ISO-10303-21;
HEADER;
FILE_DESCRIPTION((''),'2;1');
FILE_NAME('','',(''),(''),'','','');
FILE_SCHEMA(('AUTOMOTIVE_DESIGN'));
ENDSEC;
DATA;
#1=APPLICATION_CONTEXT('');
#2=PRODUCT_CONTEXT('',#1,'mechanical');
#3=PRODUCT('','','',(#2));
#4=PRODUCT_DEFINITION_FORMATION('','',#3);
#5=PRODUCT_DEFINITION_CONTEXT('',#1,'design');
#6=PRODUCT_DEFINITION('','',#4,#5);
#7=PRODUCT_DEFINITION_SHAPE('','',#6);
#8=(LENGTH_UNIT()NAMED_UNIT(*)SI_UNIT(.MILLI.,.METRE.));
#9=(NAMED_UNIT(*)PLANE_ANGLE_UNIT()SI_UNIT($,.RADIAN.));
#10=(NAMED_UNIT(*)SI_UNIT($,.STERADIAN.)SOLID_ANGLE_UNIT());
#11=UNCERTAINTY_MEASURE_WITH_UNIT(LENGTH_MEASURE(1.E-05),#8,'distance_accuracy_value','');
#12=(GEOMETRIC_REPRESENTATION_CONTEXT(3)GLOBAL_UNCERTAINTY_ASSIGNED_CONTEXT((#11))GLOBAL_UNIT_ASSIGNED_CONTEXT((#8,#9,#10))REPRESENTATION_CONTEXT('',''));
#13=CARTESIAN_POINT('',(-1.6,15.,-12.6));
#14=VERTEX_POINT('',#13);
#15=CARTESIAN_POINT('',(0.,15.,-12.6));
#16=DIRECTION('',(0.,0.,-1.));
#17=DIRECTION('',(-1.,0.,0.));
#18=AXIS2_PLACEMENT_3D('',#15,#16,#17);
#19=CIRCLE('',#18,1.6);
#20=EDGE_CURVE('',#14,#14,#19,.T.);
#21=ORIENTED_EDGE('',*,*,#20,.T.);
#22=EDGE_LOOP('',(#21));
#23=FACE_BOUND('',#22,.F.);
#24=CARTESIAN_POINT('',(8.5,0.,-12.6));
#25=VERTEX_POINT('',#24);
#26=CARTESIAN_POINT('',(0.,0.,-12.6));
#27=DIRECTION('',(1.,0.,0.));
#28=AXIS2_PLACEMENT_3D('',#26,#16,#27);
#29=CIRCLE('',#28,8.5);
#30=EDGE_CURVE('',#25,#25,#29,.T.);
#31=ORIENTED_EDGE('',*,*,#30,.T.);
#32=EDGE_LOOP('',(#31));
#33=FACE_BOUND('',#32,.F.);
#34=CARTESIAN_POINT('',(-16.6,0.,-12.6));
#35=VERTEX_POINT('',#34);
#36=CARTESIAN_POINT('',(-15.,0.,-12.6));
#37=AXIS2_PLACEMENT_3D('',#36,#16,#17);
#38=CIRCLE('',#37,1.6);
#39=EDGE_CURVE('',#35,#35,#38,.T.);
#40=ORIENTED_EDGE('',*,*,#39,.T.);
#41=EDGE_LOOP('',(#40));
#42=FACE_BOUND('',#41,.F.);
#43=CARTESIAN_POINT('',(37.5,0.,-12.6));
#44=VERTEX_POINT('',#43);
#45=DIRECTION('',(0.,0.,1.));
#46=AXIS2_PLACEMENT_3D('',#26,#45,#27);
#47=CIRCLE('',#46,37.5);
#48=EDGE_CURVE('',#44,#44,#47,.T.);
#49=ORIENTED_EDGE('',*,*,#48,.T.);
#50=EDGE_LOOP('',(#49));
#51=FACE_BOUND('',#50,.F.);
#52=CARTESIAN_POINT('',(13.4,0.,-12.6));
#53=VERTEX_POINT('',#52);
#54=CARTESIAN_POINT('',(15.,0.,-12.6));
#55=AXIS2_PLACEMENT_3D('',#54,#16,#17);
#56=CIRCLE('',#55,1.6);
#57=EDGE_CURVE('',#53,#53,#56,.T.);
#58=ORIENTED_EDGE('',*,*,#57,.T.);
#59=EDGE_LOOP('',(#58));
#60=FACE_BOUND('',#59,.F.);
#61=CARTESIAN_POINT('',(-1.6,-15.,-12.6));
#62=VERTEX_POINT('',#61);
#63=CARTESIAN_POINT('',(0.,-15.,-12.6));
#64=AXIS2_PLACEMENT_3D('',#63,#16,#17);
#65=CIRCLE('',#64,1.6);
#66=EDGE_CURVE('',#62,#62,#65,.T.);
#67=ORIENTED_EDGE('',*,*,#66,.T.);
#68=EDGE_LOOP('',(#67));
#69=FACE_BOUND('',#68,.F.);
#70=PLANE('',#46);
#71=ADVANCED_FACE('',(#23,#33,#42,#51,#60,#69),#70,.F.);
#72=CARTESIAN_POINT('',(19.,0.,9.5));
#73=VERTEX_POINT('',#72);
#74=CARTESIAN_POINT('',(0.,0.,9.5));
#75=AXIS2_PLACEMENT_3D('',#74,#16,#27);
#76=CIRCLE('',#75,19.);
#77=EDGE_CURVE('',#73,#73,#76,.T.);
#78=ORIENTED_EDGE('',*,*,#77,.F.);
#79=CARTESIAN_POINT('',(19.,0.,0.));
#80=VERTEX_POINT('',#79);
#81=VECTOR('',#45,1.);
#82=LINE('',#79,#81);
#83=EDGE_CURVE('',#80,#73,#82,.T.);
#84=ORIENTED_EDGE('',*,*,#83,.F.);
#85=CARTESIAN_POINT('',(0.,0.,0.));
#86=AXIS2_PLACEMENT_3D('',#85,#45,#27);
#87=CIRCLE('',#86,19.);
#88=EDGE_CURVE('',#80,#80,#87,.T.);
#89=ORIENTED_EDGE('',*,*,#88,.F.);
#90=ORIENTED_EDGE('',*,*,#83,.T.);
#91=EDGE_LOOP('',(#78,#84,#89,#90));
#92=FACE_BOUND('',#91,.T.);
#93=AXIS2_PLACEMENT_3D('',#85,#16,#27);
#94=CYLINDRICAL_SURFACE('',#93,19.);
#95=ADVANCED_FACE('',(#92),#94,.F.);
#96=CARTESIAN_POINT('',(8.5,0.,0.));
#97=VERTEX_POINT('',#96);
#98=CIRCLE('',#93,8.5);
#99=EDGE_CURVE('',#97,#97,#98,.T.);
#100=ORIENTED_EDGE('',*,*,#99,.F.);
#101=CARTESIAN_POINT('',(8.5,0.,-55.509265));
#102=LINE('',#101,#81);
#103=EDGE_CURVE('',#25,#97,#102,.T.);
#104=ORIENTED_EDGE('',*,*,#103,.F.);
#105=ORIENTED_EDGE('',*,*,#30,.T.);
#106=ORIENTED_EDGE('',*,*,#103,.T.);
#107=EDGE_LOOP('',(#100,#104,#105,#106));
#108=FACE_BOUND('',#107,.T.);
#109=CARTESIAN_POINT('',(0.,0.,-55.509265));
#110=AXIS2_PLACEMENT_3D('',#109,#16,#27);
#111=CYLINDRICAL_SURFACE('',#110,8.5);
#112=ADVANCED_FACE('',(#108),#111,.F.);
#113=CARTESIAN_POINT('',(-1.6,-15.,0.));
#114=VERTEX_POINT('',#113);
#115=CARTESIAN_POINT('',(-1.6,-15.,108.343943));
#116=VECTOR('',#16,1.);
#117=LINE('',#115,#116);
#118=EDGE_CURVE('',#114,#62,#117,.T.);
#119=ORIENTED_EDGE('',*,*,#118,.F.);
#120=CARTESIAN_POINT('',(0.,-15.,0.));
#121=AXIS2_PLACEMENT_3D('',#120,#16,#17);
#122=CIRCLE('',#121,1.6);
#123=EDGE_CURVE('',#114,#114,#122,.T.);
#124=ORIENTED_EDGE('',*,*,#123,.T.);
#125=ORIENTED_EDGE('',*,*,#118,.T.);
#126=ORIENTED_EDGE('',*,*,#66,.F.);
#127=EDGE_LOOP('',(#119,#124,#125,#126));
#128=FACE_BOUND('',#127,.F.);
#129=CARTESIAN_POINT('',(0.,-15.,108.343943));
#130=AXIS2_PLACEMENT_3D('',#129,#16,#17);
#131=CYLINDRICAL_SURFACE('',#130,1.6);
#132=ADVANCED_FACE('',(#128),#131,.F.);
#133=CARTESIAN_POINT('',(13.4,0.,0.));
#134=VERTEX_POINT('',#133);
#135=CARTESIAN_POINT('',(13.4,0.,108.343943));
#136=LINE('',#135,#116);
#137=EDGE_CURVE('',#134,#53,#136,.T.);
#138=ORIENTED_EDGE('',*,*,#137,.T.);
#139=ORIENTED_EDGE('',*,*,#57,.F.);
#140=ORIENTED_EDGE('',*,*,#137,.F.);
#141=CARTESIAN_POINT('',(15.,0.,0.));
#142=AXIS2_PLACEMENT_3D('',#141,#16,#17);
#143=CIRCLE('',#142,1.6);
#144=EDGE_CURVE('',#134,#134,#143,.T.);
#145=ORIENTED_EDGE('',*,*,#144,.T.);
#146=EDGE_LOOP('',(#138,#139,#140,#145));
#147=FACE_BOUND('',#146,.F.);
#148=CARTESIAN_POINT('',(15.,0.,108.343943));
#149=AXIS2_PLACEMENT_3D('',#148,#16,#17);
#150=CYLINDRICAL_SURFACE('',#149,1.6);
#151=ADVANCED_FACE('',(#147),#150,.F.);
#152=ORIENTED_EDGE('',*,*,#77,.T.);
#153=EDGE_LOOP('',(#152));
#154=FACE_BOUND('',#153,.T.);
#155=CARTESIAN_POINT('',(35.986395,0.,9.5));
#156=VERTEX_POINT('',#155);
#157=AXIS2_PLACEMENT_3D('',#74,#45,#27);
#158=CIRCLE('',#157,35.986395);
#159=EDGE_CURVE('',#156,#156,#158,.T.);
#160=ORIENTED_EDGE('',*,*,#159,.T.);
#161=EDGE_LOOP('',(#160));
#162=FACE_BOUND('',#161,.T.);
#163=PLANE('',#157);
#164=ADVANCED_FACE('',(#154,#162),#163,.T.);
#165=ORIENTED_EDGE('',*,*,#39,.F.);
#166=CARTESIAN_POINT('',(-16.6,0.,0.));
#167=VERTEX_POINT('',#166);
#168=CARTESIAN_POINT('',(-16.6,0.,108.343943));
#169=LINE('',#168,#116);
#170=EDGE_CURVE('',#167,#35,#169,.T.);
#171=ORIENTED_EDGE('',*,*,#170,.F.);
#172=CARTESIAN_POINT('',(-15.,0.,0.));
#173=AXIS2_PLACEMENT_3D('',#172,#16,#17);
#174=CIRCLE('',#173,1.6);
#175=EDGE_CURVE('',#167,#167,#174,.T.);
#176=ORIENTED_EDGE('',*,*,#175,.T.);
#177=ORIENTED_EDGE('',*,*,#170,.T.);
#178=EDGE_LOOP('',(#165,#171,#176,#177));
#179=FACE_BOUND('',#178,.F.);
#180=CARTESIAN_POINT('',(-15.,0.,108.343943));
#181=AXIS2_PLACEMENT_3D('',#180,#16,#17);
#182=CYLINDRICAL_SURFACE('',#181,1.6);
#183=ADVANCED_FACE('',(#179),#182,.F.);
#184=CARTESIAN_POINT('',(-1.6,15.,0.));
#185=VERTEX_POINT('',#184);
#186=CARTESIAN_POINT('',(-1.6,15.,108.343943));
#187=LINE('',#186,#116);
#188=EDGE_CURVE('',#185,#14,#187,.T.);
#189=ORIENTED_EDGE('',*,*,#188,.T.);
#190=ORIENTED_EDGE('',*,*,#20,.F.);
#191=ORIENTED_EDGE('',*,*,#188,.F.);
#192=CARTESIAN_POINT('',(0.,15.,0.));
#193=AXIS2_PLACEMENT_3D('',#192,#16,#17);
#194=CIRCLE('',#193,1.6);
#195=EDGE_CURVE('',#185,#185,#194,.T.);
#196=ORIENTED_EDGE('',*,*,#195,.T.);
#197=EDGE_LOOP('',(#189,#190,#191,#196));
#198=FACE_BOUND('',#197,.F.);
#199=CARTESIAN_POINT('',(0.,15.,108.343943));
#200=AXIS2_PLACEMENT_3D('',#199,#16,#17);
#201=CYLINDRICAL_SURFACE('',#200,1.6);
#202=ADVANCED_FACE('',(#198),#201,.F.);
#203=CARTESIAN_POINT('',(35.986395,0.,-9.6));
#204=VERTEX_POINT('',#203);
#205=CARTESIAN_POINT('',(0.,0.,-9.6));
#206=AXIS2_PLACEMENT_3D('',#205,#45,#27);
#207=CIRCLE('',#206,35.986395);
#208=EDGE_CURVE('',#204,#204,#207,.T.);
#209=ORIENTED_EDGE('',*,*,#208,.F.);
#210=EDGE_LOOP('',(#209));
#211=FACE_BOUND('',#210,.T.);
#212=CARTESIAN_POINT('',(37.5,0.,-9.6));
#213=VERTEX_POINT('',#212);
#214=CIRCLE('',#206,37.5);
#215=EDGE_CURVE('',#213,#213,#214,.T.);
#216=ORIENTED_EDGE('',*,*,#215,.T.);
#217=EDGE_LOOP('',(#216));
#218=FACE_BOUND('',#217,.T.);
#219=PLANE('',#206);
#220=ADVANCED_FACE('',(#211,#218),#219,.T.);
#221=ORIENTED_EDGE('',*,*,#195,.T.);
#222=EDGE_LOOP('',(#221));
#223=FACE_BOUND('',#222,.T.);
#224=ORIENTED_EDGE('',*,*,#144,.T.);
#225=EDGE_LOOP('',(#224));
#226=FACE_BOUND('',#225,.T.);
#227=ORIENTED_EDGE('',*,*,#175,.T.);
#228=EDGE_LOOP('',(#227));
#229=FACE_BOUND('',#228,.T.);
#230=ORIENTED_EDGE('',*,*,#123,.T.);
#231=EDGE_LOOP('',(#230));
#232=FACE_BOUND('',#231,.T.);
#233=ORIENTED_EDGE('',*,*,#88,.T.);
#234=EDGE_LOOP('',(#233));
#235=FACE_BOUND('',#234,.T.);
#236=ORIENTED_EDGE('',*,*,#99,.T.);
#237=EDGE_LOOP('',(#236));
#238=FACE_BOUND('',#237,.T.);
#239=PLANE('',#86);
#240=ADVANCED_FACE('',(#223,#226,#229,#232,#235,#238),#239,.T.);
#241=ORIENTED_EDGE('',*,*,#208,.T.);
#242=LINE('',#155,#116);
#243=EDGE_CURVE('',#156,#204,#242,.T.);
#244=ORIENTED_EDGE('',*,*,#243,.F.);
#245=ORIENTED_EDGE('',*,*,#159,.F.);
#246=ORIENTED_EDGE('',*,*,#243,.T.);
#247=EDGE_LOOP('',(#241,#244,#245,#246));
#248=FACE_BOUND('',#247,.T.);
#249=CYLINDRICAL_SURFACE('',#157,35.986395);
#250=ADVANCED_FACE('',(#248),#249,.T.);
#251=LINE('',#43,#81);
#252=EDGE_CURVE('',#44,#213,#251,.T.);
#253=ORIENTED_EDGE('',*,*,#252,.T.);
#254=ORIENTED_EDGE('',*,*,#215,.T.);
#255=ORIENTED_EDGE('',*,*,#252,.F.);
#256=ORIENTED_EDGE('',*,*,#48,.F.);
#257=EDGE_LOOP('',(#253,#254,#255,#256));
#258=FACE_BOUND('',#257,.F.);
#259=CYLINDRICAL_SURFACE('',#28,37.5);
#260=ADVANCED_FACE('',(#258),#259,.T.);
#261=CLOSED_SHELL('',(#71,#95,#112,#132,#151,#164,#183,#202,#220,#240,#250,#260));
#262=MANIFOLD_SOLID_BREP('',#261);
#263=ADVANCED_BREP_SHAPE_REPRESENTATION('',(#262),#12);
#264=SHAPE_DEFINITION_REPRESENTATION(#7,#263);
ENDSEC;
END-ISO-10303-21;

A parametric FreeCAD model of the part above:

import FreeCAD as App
import Part
import Sketcher
Q = App.Units.Quantity

doc = App.newDocument("Part")
params = doc.addObject("Spreadsheet::Sheet", "Params")
for row, (alias, value) in enumerate([
    ("pad1_length", "19.1 mm"),
    ("sketch2_diameter", "38 mm"),
    ("sketch3_diameter", "75 mm"),
    ("pad2_length", "3 mm"),
    ("sketch4_diameter", "17 mm"),
    ("sketch5_diameter", "3.2 mm"),
    ("hole_diameter", "3.2 mm"),
], start=1):
    params.set(f"A{row}", alias)
    params.set(f"B{row}", "=" + value)
    params.setAlias(f"B{row}", alias)

body = doc.addObject("PartDesign::Body", "Body")

# Sketch on XY plane
sketch1 = body.newObject("Sketcher::SketchObject", "Sketch")
sketch1.AttachmentSupport = (doc.getObject("XY_Plane"), [""])
sketch1.MapMode = "FlatFace"
sketch1.AttachmentOffset = App.Placement(App.Vector(0, 0, 9.5), App.Rotation())
sketch1.addGeometry(Part.Circle(App.Vector(0, 0, 0), App.Vector(0, 0, 1), 36), False)
sketch1.addConstraint([
    Sketcher.Constraint("Coincident", 0, 3, -1, 1),
    Sketcher.Constraint("Diameter", 0, Q("71.972789 mm")),
])
pad1 = body.newObject("PartDesign::Pad", "Pad")
pad1.Profile = sketch1
pad1.setExpression("Length", "Params.pad1_length")
pad1.Reversed = True

# Sketch on XY plane
sketch2 = body.newObject("Sketcher::SketchObject", "Sketch001")
sketch2.AttachmentSupport = (doc.getObject("XY_Plane"), [""])
sketch2.MapMode = "FlatFace"
sketch2.addGeometry(Part.Circle(App.Vector(0, 0, 0), App.Vector(0, 0, 1), 19), False)
sketch2.addConstraint([
    Sketcher.Constraint("Coincident", 0, 3, -1, 1),
    Sketcher.Constraint("Diameter", 0, Q("38 mm")),
])
sketch2.setExpression("Constraints[1]", "Params.sketch2_diameter")
pocket1 = body.newObject("PartDesign::Pocket", "Pocket")
pocket1.Profile = sketch2
pocket1.Type = "ThroughAll"
pocket1.Reversed = True

# Sketch on XY plane
sketch3 = body.newObject("Sketcher::SketchObject", "Sketch002")
sketch3.AttachmentSupport = (doc.getObject("XY_Plane"), [""])
sketch3.MapMode = "FlatFace"
sketch3.AttachmentOffset = App.Placement(App.Vector(0, 0, -12.6), App.Rotation())
sketch3.addGeometry(Part.Circle(App.Vector(0, 0, 0), App.Vector(0, 0, 1), 38), False)
sketch3.addConstraint([
    Sketcher.Constraint("Coincident", 0, 3, -1, 1),
    Sketcher.Constraint("Diameter", 0, Q("75 mm")),
])
sketch3.setExpression("Constraints[1]", "Params.sketch3_diameter")
pad2 = body.newObject("PartDesign::Pad", "Pad001")
pad2.Profile = sketch3
pad2.setExpression("Length", "Params.pad2_length")

# Sketch on XY plane
sketch4 = body.newObject("Sketcher::SketchObject", "Sketch003")
sketch4.AttachmentSupport = (doc.getObject("XY_Plane"), [""])
sketch4.MapMode = "FlatFace"
sketch4.addGeometry(Part.Circle(App.Vector(0, 0, 0), App.Vector(0, 0, 1), 8), False)
sketch4.addConstraint([
    Sketcher.Constraint("Coincident", 0, 3, -1, 1),
    Sketcher.Constraint("Diameter", 0, Q("17 mm")),
])
sketch4.setExpression("Constraints[1]", "Params.sketch4_diameter")
pocket2 = body.newObject("PartDesign::Pocket", "Pocket001")
pocket2.Profile = sketch4
pocket2.Type = "ThroughAll"
pocket2.Midplane = True

# Sketch on XY plane
sketch5 = body.newObject("Sketcher::SketchObject", "Sketch004")
sketch5.AttachmentSupport = (doc.getObject("XY_Plane"), [""])
sketch5.MapMode = "FlatFace"
sketch5.addGeometry([
    Part.Circle(App.Vector(0, 15, 0), App.Vector(0, 0, 1), 1.6),
    Part.Circle(App.Vector(-15, 0, 0), App.Vector(0, 0, 1), 1.6),
    Part.Circle(App.Vector(0, -15, 0), App.Vector(0, 0, 1), 1.6),
    Part.Circle(App.Vector(15, 0, 0), App.Vector(0, 0, 1), 1.6),
], False)
sketch5.addConstraint([
    Sketcher.Constraint("Equal", 0, 1),
    Sketcher.Constraint("Equal", 1, 2),
    Sketcher.Constraint("Equal", 2, 3),
    Sketcher.Constraint("Symmetric", 0, 3, 2, 3, -1, 1),
    Sketcher.Constraint("Symmetric", 1, 3, 3, 3, -1, 1),
    Sketcher.Constraint("PointOnObject", 0, 3, -2),
    Sketcher.Constraint("PointOnObject", 1, 3, -1),
    Sketcher.Constraint("Diameter", 0, Q("3.2 mm")),
    Sketcher.Constraint("DistanceY", -1, 1, 0, 3, Q("15 mm")),
    Sketcher.Constraint("DistanceX", 1, 3, -1, 1, Q("15 mm")),
])
sketch5.setExpression("Constraints[7]", "Params.sketch5_diameter")
doc.recompute()
hole = body.newObject("PartDesign::Hole", "Hole")
hole.Profile = sketch5
hole.ThreadType = "None"
hole.setExpression("Diameter", "Params.hole_diameter")
hole.DepthType = "ThroughAll"

doc.recompute()
